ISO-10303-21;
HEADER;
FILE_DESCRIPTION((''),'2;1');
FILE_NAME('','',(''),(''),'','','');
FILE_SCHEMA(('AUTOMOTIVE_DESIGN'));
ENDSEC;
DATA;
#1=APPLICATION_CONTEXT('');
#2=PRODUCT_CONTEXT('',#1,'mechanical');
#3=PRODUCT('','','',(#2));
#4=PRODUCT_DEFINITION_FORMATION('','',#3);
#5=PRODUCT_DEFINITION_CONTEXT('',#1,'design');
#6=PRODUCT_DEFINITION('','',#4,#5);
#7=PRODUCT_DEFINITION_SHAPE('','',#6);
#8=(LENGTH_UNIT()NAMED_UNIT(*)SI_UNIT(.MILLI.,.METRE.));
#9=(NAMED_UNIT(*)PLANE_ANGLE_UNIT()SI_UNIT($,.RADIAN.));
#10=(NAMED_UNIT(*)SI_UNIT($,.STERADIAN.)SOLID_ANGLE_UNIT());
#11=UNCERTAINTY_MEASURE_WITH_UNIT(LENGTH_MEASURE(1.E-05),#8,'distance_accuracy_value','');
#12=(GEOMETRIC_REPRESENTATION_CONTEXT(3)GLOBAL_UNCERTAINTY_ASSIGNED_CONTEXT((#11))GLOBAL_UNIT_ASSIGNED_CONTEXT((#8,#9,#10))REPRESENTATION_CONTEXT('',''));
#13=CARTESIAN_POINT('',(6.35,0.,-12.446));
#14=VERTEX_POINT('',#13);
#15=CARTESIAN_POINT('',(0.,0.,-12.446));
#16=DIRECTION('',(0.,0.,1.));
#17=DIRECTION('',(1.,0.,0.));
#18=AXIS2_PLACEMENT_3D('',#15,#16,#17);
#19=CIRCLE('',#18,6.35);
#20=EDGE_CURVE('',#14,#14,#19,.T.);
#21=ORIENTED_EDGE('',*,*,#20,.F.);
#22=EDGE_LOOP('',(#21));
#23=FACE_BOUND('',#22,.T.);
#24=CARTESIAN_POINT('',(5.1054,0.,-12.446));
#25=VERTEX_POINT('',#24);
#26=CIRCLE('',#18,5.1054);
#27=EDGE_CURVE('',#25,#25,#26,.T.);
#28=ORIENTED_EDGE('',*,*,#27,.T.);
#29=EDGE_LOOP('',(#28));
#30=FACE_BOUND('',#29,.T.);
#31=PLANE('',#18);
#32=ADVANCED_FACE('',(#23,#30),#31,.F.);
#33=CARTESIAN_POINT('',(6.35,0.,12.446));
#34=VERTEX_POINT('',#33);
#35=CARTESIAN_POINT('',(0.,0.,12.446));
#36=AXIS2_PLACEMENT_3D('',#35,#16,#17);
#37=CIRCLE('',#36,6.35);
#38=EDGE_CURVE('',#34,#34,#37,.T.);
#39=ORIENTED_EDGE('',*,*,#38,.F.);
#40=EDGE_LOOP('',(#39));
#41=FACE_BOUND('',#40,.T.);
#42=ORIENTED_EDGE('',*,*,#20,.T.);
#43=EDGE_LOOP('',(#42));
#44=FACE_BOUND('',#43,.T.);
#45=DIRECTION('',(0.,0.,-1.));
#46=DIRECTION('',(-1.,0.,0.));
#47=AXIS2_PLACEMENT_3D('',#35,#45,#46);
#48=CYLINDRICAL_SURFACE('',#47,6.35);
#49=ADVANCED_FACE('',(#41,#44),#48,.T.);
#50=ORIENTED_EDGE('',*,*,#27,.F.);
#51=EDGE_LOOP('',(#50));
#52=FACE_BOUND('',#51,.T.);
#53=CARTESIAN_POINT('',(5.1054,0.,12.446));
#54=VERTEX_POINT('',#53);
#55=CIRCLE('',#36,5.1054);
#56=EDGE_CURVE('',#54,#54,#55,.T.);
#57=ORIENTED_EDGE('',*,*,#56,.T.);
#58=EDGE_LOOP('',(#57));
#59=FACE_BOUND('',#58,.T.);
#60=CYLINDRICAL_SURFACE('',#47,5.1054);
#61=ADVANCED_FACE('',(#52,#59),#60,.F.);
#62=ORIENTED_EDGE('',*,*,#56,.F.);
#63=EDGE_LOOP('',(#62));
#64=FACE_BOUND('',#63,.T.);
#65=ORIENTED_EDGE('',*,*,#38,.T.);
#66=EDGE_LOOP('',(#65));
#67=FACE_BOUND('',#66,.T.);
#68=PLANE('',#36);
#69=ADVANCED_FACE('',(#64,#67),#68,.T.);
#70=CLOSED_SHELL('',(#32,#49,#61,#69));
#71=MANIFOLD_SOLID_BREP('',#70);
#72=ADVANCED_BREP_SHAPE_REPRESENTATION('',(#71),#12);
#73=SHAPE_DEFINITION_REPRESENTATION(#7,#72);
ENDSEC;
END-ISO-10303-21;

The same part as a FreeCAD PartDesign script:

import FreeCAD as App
import Part
import Sketcher
Q = App.Units.Quantity

doc = App.newDocument("Part")
body = doc.addObject("PartDesign::Body", "Body")

sketch1 = doc.addObject("Sketcher::SketchObject", "Sketch")
body.addObject(sketch1)
sketch1.AttachmentSupport = (doc.XY_Plane, [""])
sketch1.MapMode = "FlatFace"
sketch1.addGeometry(Part.Circle(App.Vector(0, 0, 0), App.Vector(0, 0, 1), 6.35), False)
sketch1.addGeometry(Part.Circle(App.Vector(0, 0, 0), App.Vector(0, 0, 1), 5.1054), False)
sketch1.addConstraint(Sketcher.Constraint("Coincident", 0, 3, -1, 1))
sketch1.addConstraint(Sketcher.Constraint("Coincident", 1, 3, -1, 1))
sketch1.addConstraint(Sketcher.Constraint("Diameter", 0, Q("0.5 in")))
sketch1.addConstraint(Sketcher.Constraint("Diameter", 1, Q("0.402 in")))
pad1 = doc.addObject("PartDesign::Pad", "Pad")
body.addObject(pad1)
pad1.Profile = sketch1
pad1.Type = "TwoLengths"
pad1.Length = Q("0.49 in")
pad1.Length2 = Q("0.49 in")

doc.recompute()
